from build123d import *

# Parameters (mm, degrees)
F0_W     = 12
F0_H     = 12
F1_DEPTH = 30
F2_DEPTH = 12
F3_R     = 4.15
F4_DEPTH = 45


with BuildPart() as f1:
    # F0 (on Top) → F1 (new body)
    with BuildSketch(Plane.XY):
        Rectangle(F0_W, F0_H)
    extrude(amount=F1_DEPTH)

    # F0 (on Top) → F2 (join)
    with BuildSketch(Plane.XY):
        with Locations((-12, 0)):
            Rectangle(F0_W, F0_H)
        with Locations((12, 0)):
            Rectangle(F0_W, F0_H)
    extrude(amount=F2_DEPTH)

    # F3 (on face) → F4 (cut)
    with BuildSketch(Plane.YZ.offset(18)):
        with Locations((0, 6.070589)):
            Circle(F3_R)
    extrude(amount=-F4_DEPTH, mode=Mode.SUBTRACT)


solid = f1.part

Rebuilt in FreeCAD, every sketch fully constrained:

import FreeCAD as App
import Part
import Sketcher

V = App.Vector


def add_polygon(sketch, points):
    """Adds a closed chain of lines whose ends are joined by coincident constraints."""
    first, n = sketch.GeometryCount, len(points)
    for a, b in zip(points, points[1:] + points[:1]):
        sketch.addGeometry(Part.LineSegment(App.Vector(*a, 0), App.Vector(*b, 0)), False)
    for i in range(n):
        sketch.addConstraint(Sketcher.Constraint("Coincident", first + i, 2, first + (i + 1) % n, 1))

doc = App.newDocument("Part")
body = doc.addObject("PartDesign::Body", "Body")

# Sketch on XY plane
sketch1 = body.newObject("Sketcher::SketchObject", "Sketch")
sketch1.AttachmentSupport = (doc.getObject("XY_Plane"), [""])
sketch1.MapMode = "FlatFace"
add_polygon(sketch1, [(-6, 6), (-6, -6), (6, -6), (6, 6)])  # lines 0-3
sketch1.addConstraint([
    Sketcher.Constraint("Vertical", 0),
    Sketcher.Constraint("Horizontal", 1),
    Sketcher.Constraint("Vertical", 2),
    Sketcher.Constraint("Horizontal", 3),
    Sketcher.Constraint("Symmetric", 0, 2, 2, 2, -1, 1),
    Sketcher.Constraint("Equal", 3, 0),
    Sketcher.Constraint("DistanceX", 1, 1, 1, 2, 12.0),
])
pad1 = body.newObject("PartDesign::Pad", "Pad")
pad1.Profile = sketch1
pad1.Length = 30

# Sketch on XY plane
sketch2 = body.newObject("Sketcher::SketchObject", "Sketch001")
sketch2.AttachmentSupport = (doc.getObject("XY_Plane"), [""])
sketch2.MapMode = "FlatFace"
add_polygon(sketch2, [(-18, 6), (-18, -6), (-6, -6), (-6, 6)])  # lines 0-3
add_polygon(sketch2, [(6, 6), (6, -6), (18, -6), (18, 6)])  # lines 4-7
sketch2.addConstraint([
    Sketcher.Constraint("Vertical", 0),
    Sketcher.Constraint("Horizontal", 1),
    Sketcher.Constraint("Vertical", 2),
    Sketcher.Constraint("Horizontal", 3),
    Sketcher.Constraint("Vertical", 4),
    Sketcher.Constraint("Horizontal", 5),
    Sketcher.Constraint("Vertical", 6),
    Sketcher.Constraint("Horizontal", 7),
    Sketcher.Constraint("Symmetric", 2, 2, 4, 2, -1, 1),
    Sketcher.Constraint("Symmetric", 0, 2, 6, 2, -1, 1),
    Sketcher.Constraint("Horizontal", 1, 2, 4, 2),
    Sketcher.Constraint("Equal", 7, 0),
    Sketcher.Constraint("DistanceX", 1, 1, 1, 2, 12.0),
    Sketcher.Constraint("DistanceX", 0, 2, -1, 1, 18.0),
])
pad2 = body.newObject("PartDesign::Pad", "Pad001")
pad2.Profile = sketch2
pad2.Length = 12

# Sketch on YZ plane
sketch3 = body.newObject("Sketcher::SketchObject", "Sketch002")
sketch3.AttachmentSupport = (doc.getObject("YZ_Plane"), [""])
sketch3.MapMode = "FlatFace"
sketch3.AttachmentOffset = App.Placement(V(0, 0, 18), App.Rotation())
sketch3.addGeometry(Part.Circle(V(0, 6.1, 0), V(0, 0, 1), 4.2), False)
sketch3.addConstraint([
    Sketcher.Constraint("PointOnObject", 0, 3, -2),
    Sketcher.Constraint("Diameter", 0, 8.3),
    Sketcher.Constraint("DistanceY", -1, 1, 0, 3, 6.070589),
])
pocket1 = body.newObject("PartDesign::Pocket", "Pocket")
pocket1.Profile = sketch3
pocket1.Length = 45

doc.recompute()
